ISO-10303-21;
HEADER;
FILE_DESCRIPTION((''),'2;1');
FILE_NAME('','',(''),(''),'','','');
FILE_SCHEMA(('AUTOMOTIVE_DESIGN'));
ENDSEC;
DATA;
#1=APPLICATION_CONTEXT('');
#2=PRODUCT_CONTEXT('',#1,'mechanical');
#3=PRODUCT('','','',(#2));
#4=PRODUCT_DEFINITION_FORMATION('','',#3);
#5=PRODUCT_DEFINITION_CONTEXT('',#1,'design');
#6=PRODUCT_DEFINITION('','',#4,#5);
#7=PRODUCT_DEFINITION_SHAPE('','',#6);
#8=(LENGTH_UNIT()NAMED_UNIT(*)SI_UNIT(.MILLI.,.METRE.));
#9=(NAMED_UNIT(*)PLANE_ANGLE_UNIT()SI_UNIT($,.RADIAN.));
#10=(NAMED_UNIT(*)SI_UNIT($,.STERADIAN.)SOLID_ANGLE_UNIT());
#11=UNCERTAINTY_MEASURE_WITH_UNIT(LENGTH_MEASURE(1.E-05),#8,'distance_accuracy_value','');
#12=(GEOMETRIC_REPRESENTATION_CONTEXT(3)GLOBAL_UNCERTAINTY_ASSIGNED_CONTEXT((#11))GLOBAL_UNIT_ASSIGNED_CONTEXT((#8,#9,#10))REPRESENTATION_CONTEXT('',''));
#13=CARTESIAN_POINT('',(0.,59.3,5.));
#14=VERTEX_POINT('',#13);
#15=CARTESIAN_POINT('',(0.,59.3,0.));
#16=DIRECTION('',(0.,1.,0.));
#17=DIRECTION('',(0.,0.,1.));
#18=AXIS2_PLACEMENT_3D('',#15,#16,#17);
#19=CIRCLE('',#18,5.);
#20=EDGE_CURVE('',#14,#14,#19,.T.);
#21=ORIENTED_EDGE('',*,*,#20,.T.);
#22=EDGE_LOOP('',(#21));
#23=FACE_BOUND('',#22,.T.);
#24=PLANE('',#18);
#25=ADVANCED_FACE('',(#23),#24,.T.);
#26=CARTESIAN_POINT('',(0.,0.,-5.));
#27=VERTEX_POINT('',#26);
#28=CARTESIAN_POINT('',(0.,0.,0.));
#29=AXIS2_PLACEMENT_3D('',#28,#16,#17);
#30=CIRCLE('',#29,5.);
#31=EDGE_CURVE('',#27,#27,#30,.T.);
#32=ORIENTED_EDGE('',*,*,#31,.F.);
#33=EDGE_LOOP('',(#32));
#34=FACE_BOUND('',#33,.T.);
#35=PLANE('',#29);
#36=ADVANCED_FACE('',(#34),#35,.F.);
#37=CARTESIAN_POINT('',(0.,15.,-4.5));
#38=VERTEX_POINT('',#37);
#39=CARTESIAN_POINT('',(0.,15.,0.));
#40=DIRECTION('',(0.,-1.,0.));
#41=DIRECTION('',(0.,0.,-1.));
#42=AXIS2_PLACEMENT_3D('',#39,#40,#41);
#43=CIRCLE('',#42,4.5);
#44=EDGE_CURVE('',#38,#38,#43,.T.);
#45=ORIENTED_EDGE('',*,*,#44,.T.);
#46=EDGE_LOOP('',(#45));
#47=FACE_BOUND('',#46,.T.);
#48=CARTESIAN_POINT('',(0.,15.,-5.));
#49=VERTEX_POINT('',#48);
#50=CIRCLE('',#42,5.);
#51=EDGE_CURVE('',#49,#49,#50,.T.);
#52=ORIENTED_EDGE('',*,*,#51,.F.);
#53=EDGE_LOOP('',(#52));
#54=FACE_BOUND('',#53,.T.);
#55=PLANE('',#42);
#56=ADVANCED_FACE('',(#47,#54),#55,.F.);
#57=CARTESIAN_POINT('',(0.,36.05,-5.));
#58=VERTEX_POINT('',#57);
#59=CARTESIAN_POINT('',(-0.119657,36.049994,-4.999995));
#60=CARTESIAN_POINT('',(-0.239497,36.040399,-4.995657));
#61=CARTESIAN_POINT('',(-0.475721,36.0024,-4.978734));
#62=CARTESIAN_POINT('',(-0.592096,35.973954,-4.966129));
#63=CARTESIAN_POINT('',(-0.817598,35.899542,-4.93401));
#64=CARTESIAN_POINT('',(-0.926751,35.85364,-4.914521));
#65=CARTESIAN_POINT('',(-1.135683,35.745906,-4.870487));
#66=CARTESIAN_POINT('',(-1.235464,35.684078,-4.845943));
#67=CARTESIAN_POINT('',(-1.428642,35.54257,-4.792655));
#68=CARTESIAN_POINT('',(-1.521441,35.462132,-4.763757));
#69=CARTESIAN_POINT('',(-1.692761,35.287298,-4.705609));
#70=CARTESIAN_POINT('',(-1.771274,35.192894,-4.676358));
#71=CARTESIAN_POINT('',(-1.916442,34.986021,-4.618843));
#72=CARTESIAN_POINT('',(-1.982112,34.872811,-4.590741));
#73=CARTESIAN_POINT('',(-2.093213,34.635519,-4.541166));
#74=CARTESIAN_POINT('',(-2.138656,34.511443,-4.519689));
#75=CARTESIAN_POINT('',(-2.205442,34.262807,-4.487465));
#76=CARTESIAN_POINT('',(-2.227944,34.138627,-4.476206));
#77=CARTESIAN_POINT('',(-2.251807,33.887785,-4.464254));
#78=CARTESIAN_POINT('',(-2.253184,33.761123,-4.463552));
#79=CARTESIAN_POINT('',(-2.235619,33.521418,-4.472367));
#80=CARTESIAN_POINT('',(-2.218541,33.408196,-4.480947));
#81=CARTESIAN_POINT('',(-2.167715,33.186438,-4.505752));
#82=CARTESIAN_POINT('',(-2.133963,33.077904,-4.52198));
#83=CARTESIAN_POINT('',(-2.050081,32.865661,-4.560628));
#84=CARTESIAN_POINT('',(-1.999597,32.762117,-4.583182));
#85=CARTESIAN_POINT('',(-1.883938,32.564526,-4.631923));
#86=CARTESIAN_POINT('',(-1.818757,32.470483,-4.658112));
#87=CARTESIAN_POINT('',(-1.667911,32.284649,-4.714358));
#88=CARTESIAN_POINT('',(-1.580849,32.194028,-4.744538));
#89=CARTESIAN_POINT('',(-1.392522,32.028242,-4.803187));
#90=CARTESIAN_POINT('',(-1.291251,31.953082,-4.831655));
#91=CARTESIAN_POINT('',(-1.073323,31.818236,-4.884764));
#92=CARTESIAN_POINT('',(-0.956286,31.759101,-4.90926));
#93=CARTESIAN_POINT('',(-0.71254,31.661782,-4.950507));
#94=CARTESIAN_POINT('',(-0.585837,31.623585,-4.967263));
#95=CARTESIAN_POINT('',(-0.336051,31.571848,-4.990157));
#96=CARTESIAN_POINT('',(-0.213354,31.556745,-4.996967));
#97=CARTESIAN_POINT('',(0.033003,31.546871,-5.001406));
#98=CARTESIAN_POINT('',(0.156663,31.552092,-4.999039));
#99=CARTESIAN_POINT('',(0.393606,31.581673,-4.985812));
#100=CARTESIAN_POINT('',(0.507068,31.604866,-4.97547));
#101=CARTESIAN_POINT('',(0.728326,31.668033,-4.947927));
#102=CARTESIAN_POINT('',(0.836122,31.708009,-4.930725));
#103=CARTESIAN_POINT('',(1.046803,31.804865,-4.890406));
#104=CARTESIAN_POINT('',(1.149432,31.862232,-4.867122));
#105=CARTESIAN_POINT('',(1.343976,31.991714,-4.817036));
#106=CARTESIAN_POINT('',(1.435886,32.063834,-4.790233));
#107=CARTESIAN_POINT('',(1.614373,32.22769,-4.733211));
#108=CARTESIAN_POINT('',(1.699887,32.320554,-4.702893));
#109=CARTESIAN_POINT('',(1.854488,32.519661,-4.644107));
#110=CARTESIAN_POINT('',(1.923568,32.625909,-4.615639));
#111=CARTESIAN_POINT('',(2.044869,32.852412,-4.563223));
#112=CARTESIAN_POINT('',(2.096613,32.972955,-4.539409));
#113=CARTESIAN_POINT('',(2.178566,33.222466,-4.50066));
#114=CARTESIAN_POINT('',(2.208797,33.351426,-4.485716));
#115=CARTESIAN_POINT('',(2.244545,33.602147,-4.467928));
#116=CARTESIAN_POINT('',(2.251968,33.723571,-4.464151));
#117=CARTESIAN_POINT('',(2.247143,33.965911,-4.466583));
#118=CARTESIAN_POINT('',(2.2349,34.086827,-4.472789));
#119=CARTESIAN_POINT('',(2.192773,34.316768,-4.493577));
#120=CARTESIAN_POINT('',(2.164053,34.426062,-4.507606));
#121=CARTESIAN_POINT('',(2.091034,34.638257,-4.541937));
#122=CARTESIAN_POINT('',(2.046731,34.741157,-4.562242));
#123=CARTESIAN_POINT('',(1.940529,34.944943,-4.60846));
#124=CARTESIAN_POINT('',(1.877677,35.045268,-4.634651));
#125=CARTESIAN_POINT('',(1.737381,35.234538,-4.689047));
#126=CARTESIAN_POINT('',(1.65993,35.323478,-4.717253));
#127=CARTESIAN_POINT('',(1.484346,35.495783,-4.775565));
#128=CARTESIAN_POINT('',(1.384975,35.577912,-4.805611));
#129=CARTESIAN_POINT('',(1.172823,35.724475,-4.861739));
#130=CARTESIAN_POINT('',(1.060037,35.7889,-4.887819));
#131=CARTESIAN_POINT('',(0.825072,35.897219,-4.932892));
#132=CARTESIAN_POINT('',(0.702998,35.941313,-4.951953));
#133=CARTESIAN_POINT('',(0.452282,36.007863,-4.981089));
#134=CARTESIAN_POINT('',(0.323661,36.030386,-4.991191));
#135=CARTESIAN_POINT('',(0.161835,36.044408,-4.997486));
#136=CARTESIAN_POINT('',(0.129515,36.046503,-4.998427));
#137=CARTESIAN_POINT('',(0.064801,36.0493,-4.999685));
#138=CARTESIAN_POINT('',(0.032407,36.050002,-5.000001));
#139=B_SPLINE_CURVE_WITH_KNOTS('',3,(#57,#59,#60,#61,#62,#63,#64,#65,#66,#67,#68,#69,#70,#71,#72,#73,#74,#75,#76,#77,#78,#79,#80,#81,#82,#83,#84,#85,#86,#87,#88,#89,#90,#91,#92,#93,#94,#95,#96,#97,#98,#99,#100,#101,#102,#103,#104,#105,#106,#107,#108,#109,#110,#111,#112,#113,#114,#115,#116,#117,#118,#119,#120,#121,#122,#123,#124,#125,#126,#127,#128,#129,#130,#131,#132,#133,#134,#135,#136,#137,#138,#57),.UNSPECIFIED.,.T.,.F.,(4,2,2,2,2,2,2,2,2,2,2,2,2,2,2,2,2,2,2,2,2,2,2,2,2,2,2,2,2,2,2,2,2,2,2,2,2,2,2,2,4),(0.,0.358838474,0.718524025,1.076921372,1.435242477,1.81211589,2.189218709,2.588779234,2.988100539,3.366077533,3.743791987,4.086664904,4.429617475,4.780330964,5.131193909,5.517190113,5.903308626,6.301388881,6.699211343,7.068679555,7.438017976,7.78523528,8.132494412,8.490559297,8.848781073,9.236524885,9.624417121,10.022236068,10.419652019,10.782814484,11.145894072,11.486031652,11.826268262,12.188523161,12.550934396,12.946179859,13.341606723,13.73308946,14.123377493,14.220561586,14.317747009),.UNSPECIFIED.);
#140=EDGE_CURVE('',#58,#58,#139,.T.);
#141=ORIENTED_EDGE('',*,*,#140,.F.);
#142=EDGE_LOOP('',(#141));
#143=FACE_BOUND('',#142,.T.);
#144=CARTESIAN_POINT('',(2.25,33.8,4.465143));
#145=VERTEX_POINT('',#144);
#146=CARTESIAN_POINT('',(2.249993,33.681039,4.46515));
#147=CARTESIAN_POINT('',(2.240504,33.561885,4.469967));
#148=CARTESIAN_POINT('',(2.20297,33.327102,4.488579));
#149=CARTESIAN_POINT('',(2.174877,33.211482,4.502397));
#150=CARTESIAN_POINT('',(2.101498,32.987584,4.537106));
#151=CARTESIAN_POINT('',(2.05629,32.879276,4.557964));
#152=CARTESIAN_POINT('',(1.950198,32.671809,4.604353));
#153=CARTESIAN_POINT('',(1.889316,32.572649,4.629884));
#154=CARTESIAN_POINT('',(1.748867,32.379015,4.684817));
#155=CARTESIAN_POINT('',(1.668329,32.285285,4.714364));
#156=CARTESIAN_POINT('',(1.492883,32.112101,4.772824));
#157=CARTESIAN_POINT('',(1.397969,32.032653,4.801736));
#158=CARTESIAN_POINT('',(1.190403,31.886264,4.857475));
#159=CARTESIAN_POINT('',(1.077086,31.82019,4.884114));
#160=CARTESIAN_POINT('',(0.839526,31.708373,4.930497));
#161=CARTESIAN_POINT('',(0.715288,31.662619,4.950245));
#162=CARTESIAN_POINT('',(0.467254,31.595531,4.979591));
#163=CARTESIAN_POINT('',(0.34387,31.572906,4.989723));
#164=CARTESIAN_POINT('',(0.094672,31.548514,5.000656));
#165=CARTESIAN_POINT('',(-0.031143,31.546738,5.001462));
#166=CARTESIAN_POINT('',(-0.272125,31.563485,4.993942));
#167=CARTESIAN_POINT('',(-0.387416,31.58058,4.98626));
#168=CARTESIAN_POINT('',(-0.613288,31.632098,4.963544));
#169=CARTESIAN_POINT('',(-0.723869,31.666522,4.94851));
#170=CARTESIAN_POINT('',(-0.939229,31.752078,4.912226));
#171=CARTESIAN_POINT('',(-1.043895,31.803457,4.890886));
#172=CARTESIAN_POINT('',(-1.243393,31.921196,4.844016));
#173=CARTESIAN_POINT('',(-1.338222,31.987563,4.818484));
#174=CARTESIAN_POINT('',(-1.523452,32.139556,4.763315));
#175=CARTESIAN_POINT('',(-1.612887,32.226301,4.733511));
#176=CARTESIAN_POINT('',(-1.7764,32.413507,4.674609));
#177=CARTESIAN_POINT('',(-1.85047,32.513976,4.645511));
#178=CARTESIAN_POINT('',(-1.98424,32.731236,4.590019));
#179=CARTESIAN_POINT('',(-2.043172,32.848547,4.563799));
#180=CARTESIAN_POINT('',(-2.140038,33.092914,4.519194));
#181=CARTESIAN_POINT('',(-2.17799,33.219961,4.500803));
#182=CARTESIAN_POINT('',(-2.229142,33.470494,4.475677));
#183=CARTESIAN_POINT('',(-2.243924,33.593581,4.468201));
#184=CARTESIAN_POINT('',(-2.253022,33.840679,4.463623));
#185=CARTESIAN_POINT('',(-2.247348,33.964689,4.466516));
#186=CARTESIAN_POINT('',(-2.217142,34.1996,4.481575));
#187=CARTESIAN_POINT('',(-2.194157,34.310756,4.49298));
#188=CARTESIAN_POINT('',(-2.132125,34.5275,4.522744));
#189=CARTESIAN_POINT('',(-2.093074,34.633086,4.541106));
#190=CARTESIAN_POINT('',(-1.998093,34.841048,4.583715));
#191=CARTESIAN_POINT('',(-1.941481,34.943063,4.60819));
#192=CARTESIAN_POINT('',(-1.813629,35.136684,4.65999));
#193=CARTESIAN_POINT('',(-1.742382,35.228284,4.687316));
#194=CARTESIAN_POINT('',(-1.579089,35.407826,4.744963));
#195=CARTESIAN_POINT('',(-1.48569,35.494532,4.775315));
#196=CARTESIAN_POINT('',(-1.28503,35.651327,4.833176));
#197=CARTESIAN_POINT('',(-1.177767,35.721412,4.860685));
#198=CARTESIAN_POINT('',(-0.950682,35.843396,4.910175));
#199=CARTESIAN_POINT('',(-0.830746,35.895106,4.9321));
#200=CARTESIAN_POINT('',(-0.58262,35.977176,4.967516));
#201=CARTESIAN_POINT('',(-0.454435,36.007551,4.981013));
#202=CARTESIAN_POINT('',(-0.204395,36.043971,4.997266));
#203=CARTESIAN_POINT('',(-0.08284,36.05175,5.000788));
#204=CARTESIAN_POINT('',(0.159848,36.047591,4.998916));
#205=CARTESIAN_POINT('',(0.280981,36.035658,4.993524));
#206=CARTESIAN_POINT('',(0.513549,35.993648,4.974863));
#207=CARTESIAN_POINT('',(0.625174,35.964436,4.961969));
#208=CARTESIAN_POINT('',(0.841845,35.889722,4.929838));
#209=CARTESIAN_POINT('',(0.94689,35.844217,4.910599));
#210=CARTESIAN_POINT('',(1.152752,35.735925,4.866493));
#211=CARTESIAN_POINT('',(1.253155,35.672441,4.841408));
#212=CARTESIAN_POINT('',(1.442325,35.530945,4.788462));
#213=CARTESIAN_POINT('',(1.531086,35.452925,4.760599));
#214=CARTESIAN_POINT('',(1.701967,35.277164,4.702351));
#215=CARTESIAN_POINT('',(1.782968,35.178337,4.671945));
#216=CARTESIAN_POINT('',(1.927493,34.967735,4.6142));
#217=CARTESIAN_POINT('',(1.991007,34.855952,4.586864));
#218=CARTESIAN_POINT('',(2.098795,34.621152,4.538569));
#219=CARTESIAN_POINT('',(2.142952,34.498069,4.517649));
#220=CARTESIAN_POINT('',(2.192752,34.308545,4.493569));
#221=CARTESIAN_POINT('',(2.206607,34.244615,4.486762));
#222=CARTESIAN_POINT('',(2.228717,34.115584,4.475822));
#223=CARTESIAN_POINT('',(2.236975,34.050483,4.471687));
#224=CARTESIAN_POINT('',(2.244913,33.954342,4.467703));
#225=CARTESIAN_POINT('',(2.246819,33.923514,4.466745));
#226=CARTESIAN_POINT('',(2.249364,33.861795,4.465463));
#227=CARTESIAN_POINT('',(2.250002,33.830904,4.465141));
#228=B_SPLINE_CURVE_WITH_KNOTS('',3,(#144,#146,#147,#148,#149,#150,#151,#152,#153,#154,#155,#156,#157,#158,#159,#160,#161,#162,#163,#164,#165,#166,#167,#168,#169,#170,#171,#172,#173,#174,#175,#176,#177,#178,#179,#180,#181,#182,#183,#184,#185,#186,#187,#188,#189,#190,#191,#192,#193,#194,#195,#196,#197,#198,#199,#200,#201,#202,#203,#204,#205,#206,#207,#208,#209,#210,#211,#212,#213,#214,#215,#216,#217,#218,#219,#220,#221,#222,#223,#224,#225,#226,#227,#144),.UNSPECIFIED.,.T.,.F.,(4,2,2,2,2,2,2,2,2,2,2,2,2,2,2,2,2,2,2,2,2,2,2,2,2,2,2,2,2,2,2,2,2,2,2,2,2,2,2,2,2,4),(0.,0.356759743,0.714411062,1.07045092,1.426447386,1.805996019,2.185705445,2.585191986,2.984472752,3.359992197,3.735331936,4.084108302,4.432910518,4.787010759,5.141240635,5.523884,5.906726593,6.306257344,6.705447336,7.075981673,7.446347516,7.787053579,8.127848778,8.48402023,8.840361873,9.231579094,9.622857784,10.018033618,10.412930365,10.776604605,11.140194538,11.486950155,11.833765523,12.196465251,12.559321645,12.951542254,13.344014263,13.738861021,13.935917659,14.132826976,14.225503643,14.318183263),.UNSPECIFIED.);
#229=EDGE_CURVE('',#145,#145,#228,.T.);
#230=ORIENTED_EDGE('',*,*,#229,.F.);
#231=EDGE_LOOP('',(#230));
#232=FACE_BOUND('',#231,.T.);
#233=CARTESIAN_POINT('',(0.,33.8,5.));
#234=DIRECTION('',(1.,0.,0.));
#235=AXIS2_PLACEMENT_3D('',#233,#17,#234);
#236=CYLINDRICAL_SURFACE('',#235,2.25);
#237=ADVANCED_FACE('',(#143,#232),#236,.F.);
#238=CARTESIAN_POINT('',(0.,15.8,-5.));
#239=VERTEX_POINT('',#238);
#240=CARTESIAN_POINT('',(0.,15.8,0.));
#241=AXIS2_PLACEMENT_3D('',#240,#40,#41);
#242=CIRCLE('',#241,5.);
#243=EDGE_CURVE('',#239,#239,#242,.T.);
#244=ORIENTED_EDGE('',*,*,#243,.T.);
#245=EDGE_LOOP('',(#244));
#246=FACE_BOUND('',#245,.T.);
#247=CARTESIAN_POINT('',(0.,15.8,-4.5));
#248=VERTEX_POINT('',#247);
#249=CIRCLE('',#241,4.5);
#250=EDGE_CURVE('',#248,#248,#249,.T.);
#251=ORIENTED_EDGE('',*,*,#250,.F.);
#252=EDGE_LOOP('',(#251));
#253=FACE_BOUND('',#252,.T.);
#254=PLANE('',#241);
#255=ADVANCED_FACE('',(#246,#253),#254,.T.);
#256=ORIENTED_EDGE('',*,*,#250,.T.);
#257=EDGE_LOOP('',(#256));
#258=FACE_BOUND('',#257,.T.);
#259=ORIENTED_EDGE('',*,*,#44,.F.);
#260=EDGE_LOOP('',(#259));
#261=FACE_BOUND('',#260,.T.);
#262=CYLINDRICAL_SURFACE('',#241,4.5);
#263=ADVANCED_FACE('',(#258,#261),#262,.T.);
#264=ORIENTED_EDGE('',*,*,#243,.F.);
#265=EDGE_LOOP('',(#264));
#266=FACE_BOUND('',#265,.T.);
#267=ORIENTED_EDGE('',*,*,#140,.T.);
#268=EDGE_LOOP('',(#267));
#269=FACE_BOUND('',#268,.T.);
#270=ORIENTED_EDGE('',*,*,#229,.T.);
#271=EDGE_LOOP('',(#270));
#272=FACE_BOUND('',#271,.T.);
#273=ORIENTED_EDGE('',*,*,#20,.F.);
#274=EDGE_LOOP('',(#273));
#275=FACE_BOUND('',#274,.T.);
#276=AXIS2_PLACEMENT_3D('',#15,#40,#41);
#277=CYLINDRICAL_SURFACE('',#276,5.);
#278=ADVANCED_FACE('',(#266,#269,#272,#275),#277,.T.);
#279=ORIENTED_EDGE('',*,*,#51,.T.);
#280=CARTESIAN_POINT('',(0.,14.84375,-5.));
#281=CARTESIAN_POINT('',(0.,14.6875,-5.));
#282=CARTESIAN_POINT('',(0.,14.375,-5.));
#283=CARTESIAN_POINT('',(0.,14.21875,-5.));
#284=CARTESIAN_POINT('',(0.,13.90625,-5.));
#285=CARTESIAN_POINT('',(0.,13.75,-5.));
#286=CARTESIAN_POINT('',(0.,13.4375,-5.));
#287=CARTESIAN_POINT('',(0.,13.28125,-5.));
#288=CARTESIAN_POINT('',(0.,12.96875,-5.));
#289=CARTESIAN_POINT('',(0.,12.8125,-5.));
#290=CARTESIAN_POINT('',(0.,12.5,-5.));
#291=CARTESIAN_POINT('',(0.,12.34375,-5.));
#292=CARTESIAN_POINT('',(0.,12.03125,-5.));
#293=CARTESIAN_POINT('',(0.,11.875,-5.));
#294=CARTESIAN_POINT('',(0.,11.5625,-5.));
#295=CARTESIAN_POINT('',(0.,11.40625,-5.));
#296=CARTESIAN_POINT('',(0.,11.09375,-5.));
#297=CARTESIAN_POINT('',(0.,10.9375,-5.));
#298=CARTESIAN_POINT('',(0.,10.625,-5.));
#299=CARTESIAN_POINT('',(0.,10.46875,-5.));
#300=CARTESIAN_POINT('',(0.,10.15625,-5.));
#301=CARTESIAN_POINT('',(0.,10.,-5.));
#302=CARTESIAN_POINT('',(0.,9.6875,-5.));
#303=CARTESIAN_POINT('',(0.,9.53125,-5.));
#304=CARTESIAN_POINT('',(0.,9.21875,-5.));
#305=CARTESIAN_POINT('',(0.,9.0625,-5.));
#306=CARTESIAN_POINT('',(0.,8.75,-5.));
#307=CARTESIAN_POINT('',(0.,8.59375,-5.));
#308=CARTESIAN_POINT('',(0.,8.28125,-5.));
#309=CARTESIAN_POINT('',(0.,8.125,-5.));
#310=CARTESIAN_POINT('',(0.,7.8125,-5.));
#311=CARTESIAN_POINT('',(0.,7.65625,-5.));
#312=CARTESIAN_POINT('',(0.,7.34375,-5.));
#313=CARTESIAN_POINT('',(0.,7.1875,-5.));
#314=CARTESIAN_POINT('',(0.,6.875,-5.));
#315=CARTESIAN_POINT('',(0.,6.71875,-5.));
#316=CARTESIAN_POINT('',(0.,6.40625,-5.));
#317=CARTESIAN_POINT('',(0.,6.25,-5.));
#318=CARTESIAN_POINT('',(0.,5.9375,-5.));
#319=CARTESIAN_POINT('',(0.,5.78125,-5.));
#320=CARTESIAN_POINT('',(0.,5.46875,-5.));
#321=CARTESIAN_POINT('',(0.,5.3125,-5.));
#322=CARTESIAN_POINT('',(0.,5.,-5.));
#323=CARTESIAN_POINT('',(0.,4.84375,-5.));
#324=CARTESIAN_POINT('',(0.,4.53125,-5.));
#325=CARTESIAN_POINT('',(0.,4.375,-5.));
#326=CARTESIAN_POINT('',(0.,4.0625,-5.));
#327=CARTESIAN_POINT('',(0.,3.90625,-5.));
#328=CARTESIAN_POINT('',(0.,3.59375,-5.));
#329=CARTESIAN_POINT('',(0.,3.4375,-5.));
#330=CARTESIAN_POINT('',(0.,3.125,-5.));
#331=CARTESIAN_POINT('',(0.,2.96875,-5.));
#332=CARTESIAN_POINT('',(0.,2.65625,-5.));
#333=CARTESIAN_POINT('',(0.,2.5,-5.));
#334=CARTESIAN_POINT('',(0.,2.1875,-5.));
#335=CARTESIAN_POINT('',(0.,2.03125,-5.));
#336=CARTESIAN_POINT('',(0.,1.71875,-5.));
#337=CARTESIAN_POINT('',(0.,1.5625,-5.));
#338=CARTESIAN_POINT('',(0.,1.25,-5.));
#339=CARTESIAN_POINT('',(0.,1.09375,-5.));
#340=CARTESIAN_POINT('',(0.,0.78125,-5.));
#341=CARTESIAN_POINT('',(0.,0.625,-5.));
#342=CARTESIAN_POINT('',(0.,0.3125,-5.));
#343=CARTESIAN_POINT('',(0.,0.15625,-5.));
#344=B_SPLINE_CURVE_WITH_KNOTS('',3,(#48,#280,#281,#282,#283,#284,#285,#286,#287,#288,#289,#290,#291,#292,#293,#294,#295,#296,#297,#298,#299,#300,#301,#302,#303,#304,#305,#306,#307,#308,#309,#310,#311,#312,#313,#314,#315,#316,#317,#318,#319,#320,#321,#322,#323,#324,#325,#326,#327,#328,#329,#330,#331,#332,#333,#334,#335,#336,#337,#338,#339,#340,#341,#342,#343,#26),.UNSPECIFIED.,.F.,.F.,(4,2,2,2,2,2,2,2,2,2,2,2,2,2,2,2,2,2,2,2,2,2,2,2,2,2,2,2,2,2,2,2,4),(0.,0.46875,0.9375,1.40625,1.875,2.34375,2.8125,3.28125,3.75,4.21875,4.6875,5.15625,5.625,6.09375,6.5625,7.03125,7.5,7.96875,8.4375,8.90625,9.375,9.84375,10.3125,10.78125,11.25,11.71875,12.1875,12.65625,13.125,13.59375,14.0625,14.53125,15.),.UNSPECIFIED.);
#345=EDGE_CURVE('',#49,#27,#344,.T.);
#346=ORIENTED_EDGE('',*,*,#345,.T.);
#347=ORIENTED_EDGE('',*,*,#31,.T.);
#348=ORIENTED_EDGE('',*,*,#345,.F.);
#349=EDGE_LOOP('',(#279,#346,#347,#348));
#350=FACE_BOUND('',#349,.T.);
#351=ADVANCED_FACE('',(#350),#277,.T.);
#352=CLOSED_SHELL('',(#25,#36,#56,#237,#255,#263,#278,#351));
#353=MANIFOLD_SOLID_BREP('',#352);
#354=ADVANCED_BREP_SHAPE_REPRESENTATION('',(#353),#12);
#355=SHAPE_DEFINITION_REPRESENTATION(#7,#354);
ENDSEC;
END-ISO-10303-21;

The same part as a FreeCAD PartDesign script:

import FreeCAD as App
import Part
import Sketcher
from FreeCAD import Vector

doc = App.newDocument("Part")
params = doc.addObject("Spreadsheet::Sheet", "Params")
for row, (alias, value) in enumerate([
    ("sketch1_diameter", "10 mm"),
    ("pad1_length", "59.3 mm"),
    ("sketch2_diameter", "10 mm"),
    ("sketch2_diameter2", "9 mm"),
    ("pocket1_length", "0.8 mm"),
    ("sketch3_diameter", "4.5 mm"),
    ("hole_diameter", "4.5 mm"),
], start=1):
    params.set(f"A{row}", alias)
    params.set(f"B{row}", "=" + value)
    params.setAlias(f"B{row}", alias)

body = doc.addObject("PartDesign::Body", "Body")

# Sketch on XZ plane
sketch1 = body.newObject("Sketcher::SketchObject", "Sketch")
sketch1.AttachmentSupport = (doc.getObject("XZ_Plane"), [""])
sketch1.MapMode = "FlatFace"
sketch1.addGeometry(Part.Circle(Vector(0, 0, 0), Vector(0, 0, 1), 5), False)
sketch1.addConstraint(Sketcher.Constraint("Coincident", 0, 3, -1, 1))
sketch1.addConstraint(Sketcher.Constraint("Diameter", 0, 10.0))
sketch1.setExpression("Constraints[1]", "Params.sketch1_diameter")
pad1 = body.newObject("PartDesign::Pad", "Pad")
pad1.Profile = sketch1
pad1.setExpression("Length", "Params.pad1_length")
pad1.Reversed = True

# Sketch on XZ plane
sketch2 = body.newObject("Sketcher::SketchObject", "Sketch001")
sketch2.AttachmentSupport = (doc.getObject("XZ_Plane"), [""])
sketch2.MapMode = "FlatFace"
sketch2.AttachmentOffset = App.Placement(Vector(0, 0, -15), App.Rotation())
sketch2.addGeometry(Part.Circle(Vector(0, 0, 0), Vector(0, 0, 1), 5), False)
sketch2.addGeometry(Part.Circle(Vector(0, 0, 0), Vector(0, 0, 1), 4.5), False)
sketch2.addConstraint(Sketcher.Constraint("Coincident", 0, 3, -1, 1))
sketch2.addConstraint(Sketcher.Constraint("Coincident", 1, 3, -1, 1))
sketch2.addConstraint(Sketcher.Constraint("Diameter", 0, 10.0))
sketch2.addConstraint(Sketcher.Constraint("Diameter", 1, 9.0))
sketch2.setExpression("Constraints[2]", "Params.sketch2_diameter")
sketch2.setExpression("Constraints[3]", "Params.sketch2_diameter2")
pocket1 = body.newObject("PartDesign::Pocket", "Pocket")
pocket1.Profile = sketch2
pocket1.setExpression("Length", "Params.pocket1_length")

# Sketch on XY plane
sketch3 = body.newObject("Sketcher::SketchObject", "Sketch002")
sketch3.AttachmentSupport = (doc.getObject("XY_Plane"), [""])
sketch3.MapMode = "FlatFace"
sketch3.AttachmentOffset = App.Placement(Vector(0, 0, 5), App.Rotation())
sketch3.addGeometry(Part.Circle(Vector(0, 33.8, 0), Vector(0, 0, 1), 2.2), False)
sketch3.addConstraint(Sketcher.Constraint("PointOnObject", 0, 3, -2))
sketch3.addConstraint(Sketcher.Constraint("Diameter", 0, 4.5))
sketch3.addConstraint(Sketcher.Constraint("DistanceY", -1, 1, 0, 3, 33.8))
sketch3.setExpression("Constraints[1]", "Params.sketch3_diameter")
doc.recompute()
hole = body.newObject("PartDesign::Hole", "Hole")
hole.Profile = sketch3
hole.ThreadType = "None"
hole.setExpression("Diameter", "Params.hole_diameter")
hole.DepthType = "ThroughAll"

doc.recompute()
